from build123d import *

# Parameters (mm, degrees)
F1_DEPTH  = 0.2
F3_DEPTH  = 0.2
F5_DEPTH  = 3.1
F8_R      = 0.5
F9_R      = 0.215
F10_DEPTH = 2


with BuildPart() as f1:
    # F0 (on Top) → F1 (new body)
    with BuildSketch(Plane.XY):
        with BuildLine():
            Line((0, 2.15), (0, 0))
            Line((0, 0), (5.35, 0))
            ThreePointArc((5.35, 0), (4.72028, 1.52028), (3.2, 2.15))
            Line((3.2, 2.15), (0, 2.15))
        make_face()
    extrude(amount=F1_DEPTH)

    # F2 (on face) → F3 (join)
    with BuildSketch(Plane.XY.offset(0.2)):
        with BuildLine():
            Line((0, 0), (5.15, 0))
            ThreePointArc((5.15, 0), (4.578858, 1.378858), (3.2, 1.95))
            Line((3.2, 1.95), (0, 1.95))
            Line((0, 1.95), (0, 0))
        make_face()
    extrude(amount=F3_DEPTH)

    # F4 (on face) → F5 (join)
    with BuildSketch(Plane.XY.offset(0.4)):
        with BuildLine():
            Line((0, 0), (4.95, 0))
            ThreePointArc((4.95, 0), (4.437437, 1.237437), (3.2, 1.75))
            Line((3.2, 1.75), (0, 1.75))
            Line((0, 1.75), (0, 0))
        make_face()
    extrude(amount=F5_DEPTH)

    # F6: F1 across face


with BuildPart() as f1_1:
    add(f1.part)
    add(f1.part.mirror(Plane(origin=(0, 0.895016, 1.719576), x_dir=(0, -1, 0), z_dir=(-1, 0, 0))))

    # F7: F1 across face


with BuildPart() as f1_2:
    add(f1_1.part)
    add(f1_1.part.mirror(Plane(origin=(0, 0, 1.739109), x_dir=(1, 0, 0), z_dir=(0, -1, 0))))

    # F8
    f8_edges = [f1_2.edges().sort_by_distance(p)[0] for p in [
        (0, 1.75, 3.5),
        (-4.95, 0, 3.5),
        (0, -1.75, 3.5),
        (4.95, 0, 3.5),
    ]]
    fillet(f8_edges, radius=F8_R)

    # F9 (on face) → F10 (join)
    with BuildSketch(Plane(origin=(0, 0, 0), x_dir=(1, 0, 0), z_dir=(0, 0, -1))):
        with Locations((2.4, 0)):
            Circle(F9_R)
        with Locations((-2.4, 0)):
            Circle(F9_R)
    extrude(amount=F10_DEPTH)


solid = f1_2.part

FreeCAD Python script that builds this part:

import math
import FreeCAD as App
import Part
import Sketcher
from FreeCAD import Vector
Q = App.Units.Quantity


def edges_at(feature, points):
    """Names of the edges that pass closest to the given points."""
    edges = feature.Shape.Edges
    near = lambda p: min(range(len(edges)), key=lambda i: edges[i].distToShape(Part.Vertex(*p))[0])
    return sorted({f"Edge{near(p) + 1}" for p in points})

doc = App.newDocument("Part")
body = doc.addObject("PartDesign::Body", "Body")

sketch1 = doc.addObject("Sketcher::SketchObject", "Sketch")
body.addObject(sketch1)
sketch1.AttachmentSupport = (doc.XY_Plane, [""])
sketch1.MapMode = "FlatFace"
sketch1.addGeometry(Part.LineSegment(Vector(0, 2.15, 0), Vector(0, 0, 0)), False)
sketch1.addGeometry(Part.LineSegment(Vector(0, 0, 0), Vector(5.35, 0, 0)), False)
sketch1.addGeometry(Part.ArcOfCircle(Part.Circle(Vector(3.200001, 0.000001, 0), Vector(0, 0, 1), 2.149999), math.radians(-0.000038), math.radians(90.000038)), False)
sketch1.addGeometry(Part.LineSegment(Vector(3.2, 2.15, 0), Vector(0, 2.15, 0)), False)
sketch1.addConstraint(Sketcher.Constraint("Coincident", 0, 2, 1, 1))
sketch1.addConstraint(Sketcher.Constraint("Coincident", 1, 2, 2, 1))
sketch1.addConstraint(Sketcher.Constraint("Tangent", 2, 2, 3, 1))
sketch1.addConstraint(Sketcher.Constraint("Coincident", 3, 2, 0, 1))
sketch1.addConstraint(Sketcher.Constraint("Vertical", 0))
sketch1.addConstraint(Sketcher.Constraint("Horizontal", 1))
sketch1.addConstraint(Sketcher.Constraint("Horizontal", 3))
sketch1.addConstraint(Sketcher.Constraint("Coincident", 0, 2, -1, 1))
sketch1.addConstraint(Sketcher.Constraint("PointOnObject", 2, 3, -1))
sketch1.addConstraint(Sketcher.Constraint("Radius", 2, Q("2.149999 mm")))
sketch1.addConstraint(Sketcher.Constraint("DistanceX", 3, 2, 3, 1, Q("3.2 mm")))
pad1 = doc.addObject("PartDesign::Pad", "Pad")
body.addObject(pad1)
pad1.Profile = sketch1
pad1.Length = 0.2

sketch2 = doc.addObject("Sketcher::SketchObject", "Sketch001")
body.addObject(sketch2)
sketch2.AttachmentSupport = (doc.XY_Plane, [""])
sketch2.MapMode = "FlatFace"
sketch2.AttachmentOffset = App.Placement(Vector(0, 0, 0.2), App.Rotation())
sketch2.addGeometry(Part.LineSegment(Vector(0, 0, 0), Vector(5.15, 0, 0)), False)
sketch2.addGeometry(Part.ArcOfCircle(Part.Circle(Vector(3.199999, -0.000001, 0), Vector(0, 0, 1), 1.950001), math.radians(0.000022), math.radians(89.999978)), False)
sketch2.addGeometry(Part.LineSegment(Vector(3.2, 1.95, 0), Vector(0, 1.95, 0)), False)
sketch2.addGeometry(Part.LineSegment(Vector(0, 1.95, 0), Vector(0, 0, 0)), False)
sketch2.addConstraint(Sketcher.Constraint("Coincident", 0, 2, 1, 1))
sketch2.addConstraint(Sketcher.Constraint("Tangent", 1, 2, 2, 1))
sketch2.addConstraint(Sketcher.Constraint("Coincident", 2, 2, 3, 1))
sketch2.addConstraint(Sketcher.Constraint("Coincident", 3, 2, 0, 1))
sketch2.addConstraint(Sketcher.Constraint("Horizontal", 0))
sketch2.addConstraint(Sketcher.Constraint("Horizontal", 2))
sketch2.addConstraint(Sketcher.Constraint("Vertical", 3))
sketch2.addConstraint(Sketcher.Constraint("Coincident", 3, 2, -1, 1))
sketch2.addConstraint(Sketcher.Constraint("PointOnObject", 1, 3, -1))
sketch2.addConstraint(Sketcher.Constraint("Radius", 1, Q("1.950001 mm")))
sketch2.addConstraint(Sketcher.Constraint("DistanceX", 2, 2, 2, 1, Q("3.2 mm")))
pad2 = doc.addObject("PartDesign::Pad", "Pad001")
body.addObject(pad2)
pad2.Profile = sketch2
pad2.Length = 0.2

sketch3 = doc.addObject("Sketcher::SketchObject", "Sketch002")
body.addObject(sketch3)
sketch3.AttachmentSupport = (doc.XY_Plane, [""])
sketch3.MapMode = "FlatFace"
sketch3.AttachmentOffset = App.Placement(Vector(0, 0, 0.4), App.Rotation())
sketch3.addGeometry(Part.LineSegment(Vector(0, 0, 0), Vector(4.95, 0, 0)), False)
sketch3.addGeometry(Part.ArcOfCircle(Part.Circle(Vector(3.2, 0, 0), Vector(0, 0, 1), 1.75), math.radians(-0.000015), math.radians(90.000015)), False)
sketch3.addGeometry(Part.LineSegment(Vector(3.2, 1.75, 0), Vector(0, 1.75, 0)), False)
sketch3.addGeometry(Part.LineSegment(Vector(0, 1.75, 0), Vector(0, 0, 0)), False)
sketch3.addConstraint(Sketcher.Constraint("Coincident", 0, 2, 1, 1))
sketch3.addConstraint(Sketcher.Constraint("Tangent", 1, 2, 2, 1))
sketch3.addConstraint(Sketcher.Constraint("Coincident", 2, 2, 3, 1))
sketch3.addConstraint(Sketcher.Constraint("Coincident", 3, 2, 0, 1))
sketch3.addConstraint(Sketcher.Constraint("Horizontal", 0))
sketch3.addConstraint(Sketcher.Constraint("Horizontal", 2))
sketch3.addConstraint(Sketcher.Constraint("Vertical", 3))
sketch3.addConstraint(Sketcher.Constraint("Coincident", 3, 2, -1, 1))
sketch3.addConstraint(Sketcher.Constraint("PointOnObject", 1, 3, -1))
sketch3.addConstraint(Sketcher.Constraint("Radius", 1, Q("1.75 mm")))
sketch3.addConstraint(Sketcher.Constraint("DistanceX", 2, 2, 2, 1, Q("3.2 mm")))
pad3 = doc.addObject("PartDesign::Pad", "Pad002")
body.addObject(pad3)
pad3.Profile = sketch3
pad3.Length = 3.1
body2 = doc.addObject("PartDesign::Body", "Body001")
doc.recompute()

body2.BaseFeature = body
doc.recompute()

mirroring = doc.addObject("Part::Mirroring", "Mirroring")
mirroring.Source = body
mirroring.Base = Vector(0, 0.895016, 1.719576)
mirroring.Normal = Vector(-1, 0, 0)
body3 = doc.addObject("PartDesign::Body", "Body002")
body3.BaseFeature = mirroring
boolean = doc.addObject("PartDesign::Boolean", "Boolean")
body2.addObject(boolean)
boolean.Type = "Fuse"
boolean.addObjects([body3])
doc.recompute()
body4 = doc.addObject("PartDesign::Body", "Body003")
doc.recompute()

body4.BaseFeature = body2
doc.recompute()

mirroring2 = doc.addObject("Part::Mirroring", "Mirroring001")
mirroring2.Source = body2
mirroring2.Base = Vector(0, 0, 1.739109)
mirroring2.Normal = Vector(0, -1, 0)
body5 = doc.addObject("PartDesign::Body", "Body004")
body5.BaseFeature = mirroring2
boolean2 = doc.addObject("PartDesign::Boolean", "Boolean001")
body4.addObject(boolean2)
boolean2.Type = "Fuse"
boolean2.addObjects([body5])
doc.recompute()

fillet = doc.addObject("PartDesign::Fillet", "Fillet")
body4.addObject(fillet)
fillet.Base = (boolean2, edges_at(boolean2, [
    (0, 1.75, 3.5),
    (-4.437, -1.237, 3.5),
    (0, -1.75, 3.5),
    (4.437, -1.237, 3.5),
]))
fillet.Radius = 0.5

sketch4 = doc.addObject("Sketcher::SketchObject", "Sketch003")
body4.addObject(sketch4)
sketch4.AttachmentSupport = (doc.getObject("XY_Plane003"), [""])
sketch4.MapMode = "FlatFace"
sketch4.addGeometry(Part.Circle(Vector(2.4, 0, 0), Vector(0, 0, 1), 0.215), False)
sketch4.addGeometry(Part.Circle(Vector(-2.4, 0, 0), Vector(0, 0, 1), 0.215), False)
sketch4.addConstraint(Sketcher.Constraint("Equal", 0, 1))
sketch4.addConstraint(Sketcher.Constraint("Symmetric", 0, 3, 1, 3, -1, 1))
sketch4.addConstraint(Sketcher.Constraint("PointOnObject", 0, 3, -1))
sketch4.addConstraint(Sketcher.Constraint("Diameter", 0, Q("0.43 mm")))
sketch4.addConstraint(Sketcher.Constraint("DistanceX", -1, 1, 0, 3, Q("2.4 mm")))
pad4 = doc.addObject("PartDesign::Pad", "Pad003")
body4.addObject(pad4)
pad4.Profile = sketch4
pad4.Length = 2
pad4.Reversed = True
mirroring.Visibility = False
mirroring2.Visibility = False

doc.recompute()
